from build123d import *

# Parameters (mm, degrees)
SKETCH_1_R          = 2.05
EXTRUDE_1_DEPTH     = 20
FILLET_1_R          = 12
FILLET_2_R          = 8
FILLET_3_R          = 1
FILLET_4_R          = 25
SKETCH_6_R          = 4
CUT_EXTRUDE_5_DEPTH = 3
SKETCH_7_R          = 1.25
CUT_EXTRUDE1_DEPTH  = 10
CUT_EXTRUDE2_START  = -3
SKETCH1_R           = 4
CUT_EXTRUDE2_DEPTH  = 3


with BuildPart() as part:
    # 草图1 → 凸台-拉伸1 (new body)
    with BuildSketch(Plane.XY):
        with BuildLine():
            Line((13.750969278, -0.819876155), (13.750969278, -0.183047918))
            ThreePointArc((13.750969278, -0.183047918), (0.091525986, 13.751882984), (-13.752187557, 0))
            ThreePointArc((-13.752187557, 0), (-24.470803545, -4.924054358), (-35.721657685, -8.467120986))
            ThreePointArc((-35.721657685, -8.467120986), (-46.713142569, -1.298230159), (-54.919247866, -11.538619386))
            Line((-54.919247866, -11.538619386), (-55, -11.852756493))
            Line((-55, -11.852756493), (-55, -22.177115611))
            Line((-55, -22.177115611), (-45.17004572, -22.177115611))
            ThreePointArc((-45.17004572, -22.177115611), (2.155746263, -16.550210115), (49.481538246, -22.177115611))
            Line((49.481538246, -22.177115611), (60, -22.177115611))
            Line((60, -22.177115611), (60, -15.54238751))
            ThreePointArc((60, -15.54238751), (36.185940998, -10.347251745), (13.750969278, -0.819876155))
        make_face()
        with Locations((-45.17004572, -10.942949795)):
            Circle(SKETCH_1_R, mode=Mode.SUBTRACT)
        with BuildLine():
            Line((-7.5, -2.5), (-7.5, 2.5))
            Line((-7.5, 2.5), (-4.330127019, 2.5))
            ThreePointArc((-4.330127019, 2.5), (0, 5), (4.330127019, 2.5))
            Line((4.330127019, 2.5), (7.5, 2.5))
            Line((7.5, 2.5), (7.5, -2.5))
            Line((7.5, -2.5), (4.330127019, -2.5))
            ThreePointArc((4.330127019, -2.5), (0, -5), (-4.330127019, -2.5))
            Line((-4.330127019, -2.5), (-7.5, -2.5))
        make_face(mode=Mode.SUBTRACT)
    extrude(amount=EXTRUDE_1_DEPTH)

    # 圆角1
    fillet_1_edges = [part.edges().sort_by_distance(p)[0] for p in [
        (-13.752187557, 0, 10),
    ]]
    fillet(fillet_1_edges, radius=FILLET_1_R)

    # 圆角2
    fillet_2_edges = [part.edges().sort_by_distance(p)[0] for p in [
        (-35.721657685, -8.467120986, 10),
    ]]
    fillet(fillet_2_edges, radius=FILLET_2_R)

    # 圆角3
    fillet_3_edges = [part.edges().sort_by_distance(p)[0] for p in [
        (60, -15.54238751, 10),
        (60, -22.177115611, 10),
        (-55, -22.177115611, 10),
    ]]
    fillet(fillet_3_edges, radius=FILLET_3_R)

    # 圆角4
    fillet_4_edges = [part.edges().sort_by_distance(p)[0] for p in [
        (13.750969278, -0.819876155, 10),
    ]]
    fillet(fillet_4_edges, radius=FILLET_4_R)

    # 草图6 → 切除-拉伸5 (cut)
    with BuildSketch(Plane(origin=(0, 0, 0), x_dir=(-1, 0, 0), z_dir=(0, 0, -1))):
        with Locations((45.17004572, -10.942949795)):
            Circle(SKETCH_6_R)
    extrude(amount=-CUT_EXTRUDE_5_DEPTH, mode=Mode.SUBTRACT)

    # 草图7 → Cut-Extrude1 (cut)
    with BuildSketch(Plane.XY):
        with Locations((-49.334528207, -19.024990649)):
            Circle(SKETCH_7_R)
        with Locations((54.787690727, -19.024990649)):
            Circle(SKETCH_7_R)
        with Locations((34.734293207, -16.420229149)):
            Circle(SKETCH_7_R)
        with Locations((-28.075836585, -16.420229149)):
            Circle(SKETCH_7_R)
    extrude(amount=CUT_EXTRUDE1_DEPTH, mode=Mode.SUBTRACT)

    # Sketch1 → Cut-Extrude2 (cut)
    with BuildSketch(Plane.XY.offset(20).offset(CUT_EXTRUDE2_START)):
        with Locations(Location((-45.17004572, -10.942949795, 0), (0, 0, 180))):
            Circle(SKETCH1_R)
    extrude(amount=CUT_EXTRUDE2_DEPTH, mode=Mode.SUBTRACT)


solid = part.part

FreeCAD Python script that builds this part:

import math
import FreeCAD as App
import Part
import Sketcher
from FreeCAD import Vector
Q = App.Units.Quantity


def edges_at(feature, points):
    """Names of the edges that pass closest to the given points."""
    edges = feature.Shape.Edges
    near = lambda p: min(range(len(edges)), key=lambda i: edges[i].distToShape(Part.Vertex(*p))[0])
    return sorted({f"Edge{near(p) + 1}" for p in points})

doc = App.newDocument("Part")
params = doc.addObject("Spreadsheet::Sheet", "Params")
for row, (alias, value) in enumerate([
    ("sketch1_radius", "5 mm"),
    ("sketch1_diameter", "4.1 mm"),
    ("sketch1_height", "5 mm"),
    ("pad1_length", "20 mm"),
    ("fillet_radius", "12 mm"),
    ("fillet2_radius", "8 mm"),
    ("fillet3_radius", "1 mm"),
    ("fillet4_radius", "25 mm"),
    ("sketch2_diameter", "8 mm"),
    ("pocket1_length", "3 mm"),
    ("sketch3_diameter", "2.5 mm"),
    ("pocket2_length", "10 mm"),
    ("sketch4_diameter", "8 mm"),
    ("pocket3_length", "3 mm"),
], start=1):
    params.set(f"A{row}", alias)
    params.set(f"B{row}", "=" + value)
    params.setAlias(f"B{row}", alias)

body = doc.addObject("PartDesign::Body", "Body")

# Sketch on XY plane
sketch1 = body.newObject("Sketcher::SketchObject", "Sketch")
sketch1.AttachmentSupport = (doc.getObject("XY_Plane"), [""])
sketch1.MapMode = "FlatFace"
sketch1.addGeometry(Part.LineSegment(Vector(13.750969, -0.819876, 0), Vector(13.750969, -0.183048, 0)), False)
sketch1.addGeometry(Part.ArcOfCircle(Part.Circle(Vector(0, 0, 0), Vector(0, 0, 1), 13.752188), math.radians(-0.762656), math.radians(180)), False)
sketch1.addGeometry(Part.ArcOfCircle(Part.Circle(Vector(-58.278703, 82.796628, 0), Vector(0, 0, 1), 94.010064), math.radians(-76.116831), math.radians(-61.729447)), False)
sketch1.addGeometry(Part.ArcOfCircle(Part.Circle(Vector(-45.170046, -10.94295, 0), Vector(0, 0, 1), 9.767383), math.radians(14.683492), math.radians(183.496386)), False)
sketch1.addGeometry(Part.LineSegment(Vector(-54.919248, -11.538619, 0), Vector(-55, -11.852756, 0)), False)
sketch1.addGeometry(Part.LineSegment(Vector(-55, -11.852756, 0), Vector(-55, -22.177116, 0)), False)
sketch1.addGeometry(Part.LineSegment(Vector(-55, -22.177116, 0), Vector(-45.170046, -22.177116, 0)), False)
sketch1.addGeometry(Part.ArcOfCircle(Part.Circle(Vector(2.155746, -218.383407, 0), Vector(0, 0, 1), 201.833197), math.radians(76.439044), math.radians(103.560956)), False)
sketch1.addGeometry(Part.LineSegment(Vector(49.481538, -22.177116, 0), Vector(60, -22.177116, 0)), False)
sketch1.addGeometry(Part.LineSegment(Vector(60, -22.177116, 0), Vector(60, -15.542388, 0)), False)
sketch1.addGeometry(Part.ArcOfCircle(Part.Circle(Vector(75.823429, 114.169236, 0), Vector(0, 0, 1), 130.673204), math.radians(-118.360689), math.radians(-96.955107)), False)
sketch1.addGeometry(Part.Circle(Vector(-45.170046, -10.94295, 0), Vector(0, 0, 1), 2.05), False)
sketch1.addGeometry(Part.LineSegment(Vector(-4.330127, -2.5, 0), Vector(-7.5, -2.5, 0)), False)
sketch1.addGeometry(Part.LineSegment(Vector(-7.5, -2.5, 0), Vector(-7.5, 2.5, 0)), False)
sketch1.addGeometry(Part.LineSegment(Vector(-7.5, 2.5, 0), Vector(-4.330127, 2.5, 0)), False)
sketch1.addGeometry(Part.ArcOfCircle(Part.Circle(Vector(0, 0, 0), Vector(0, 0, 1), 5), math.radians(30), math.radians(150)), False)
sketch1.addGeometry(Part.LineSegment(Vector(4.330127, 2.5, 0), Vector(7.5, 2.5, 0)), False)
sketch1.addGeometry(Part.LineSegment(Vector(7.5, 2.5, 0), Vector(7.5, -2.5, 0)), False)
sketch1.addGeometry(Part.LineSegment(Vector(7.5, -2.5, 0), Vector(4.330127, -2.5, 0)), False)
sketch1.addGeometry(Part.ArcOfCircle(Part.Circle(Vector(0, 0, 0), Vector(0, 0, 1), 5), math.radians(-150), math.radians(-30)), False)
sketch1.addConstraint(Sketcher.Constraint("Coincident", 0, 2, 1, 1))
sketch1.addConstraint(Sketcher.Constraint("Coincident", 1, 2, 2, 2))
sketch1.addConstraint(Sketcher.Constraint("Coincident", 2, 1, 3, 1))
sketch1.addConstraint(Sketcher.Constraint("Coincident", 3, 2, 4, 1))
sketch1.addConstraint(Sketcher.Constraint("Coincident", 4, 2, 5, 1))
sketch1.addConstraint(Sketcher.Constraint("Coincident", 5, 2, 6, 1))
sketch1.addConstraint(Sketcher.Constraint("Coincident", 6, 2, 7, 2))
sketch1.addConstraint(Sketcher.Constraint("Coincident", 7, 1, 8, 1))
sketch1.addConstraint(Sketcher.Constraint("Coincident", 8, 2, 9, 1))
sketch1.addConstraint(Sketcher.Constraint("Coincident", 9, 2, 10, 2))
sketch1.addConstraint(Sketcher.Constraint("Coincident", 10, 1, 0, 1))
sketch1.addConstraint(Sketcher.Constraint("Coincident", 12, 2, 13, 1))
sketch1.addConstraint(Sketcher.Constraint("Coincident", 13, 2, 14, 1))
sketch1.addConstraint(Sketcher.Constraint("Coincident", 14, 2, 15, 2))
sketch1.addConstraint(Sketcher.Constraint("Coincident", 15, 1, 16, 1))
sketch1.addConstraint(Sketcher.Constraint("Coincident", 16, 2, 17, 1))
sketch1.addConstraint(Sketcher.Constraint("Coincident", 17, 2, 18, 1))
sketch1.addConstraint(Sketcher.Constraint("Coincident", 18, 2, 19, 2))
sketch1.addConstraint(Sketcher.Constraint("Coincident", 19, 1, 12, 1))
sketch1.addConstraint(Sketcher.Constraint("Vertical", 0))
sketch1.addConstraint(Sketcher.Constraint("Vertical", 5))
sketch1.addConstraint(Sketcher.Constraint("Horizontal", 6))
sketch1.addConstraint(Sketcher.Constraint("Horizontal", 8))
sketch1.addConstraint(Sketcher.Constraint("Vertical", 9))
sketch1.addConstraint(Sketcher.Constraint("Horizontal", 12))
sketch1.addConstraint(Sketcher.Constraint("Vertical", 13))
sketch1.addConstraint(Sketcher.Constraint("Horizontal", 14))
sketch1.addConstraint(Sketcher.Constraint("Horizontal", 16))
sketch1.addConstraint(Sketcher.Constraint("Vertical", 17))
sketch1.addConstraint(Sketcher.Constraint("Horizontal", 18))
sketch1.addConstraint(Sketcher.Constraint("Coincident", 1, 3, -1, 1))
sketch1.addConstraint(Sketcher.Constraint("Coincident", 15, 3, -1, 1))
sketch1.addConstraint(Sketcher.Constraint("Coincident", 19, 3, -1, 1))
sketch1.addConstraint(Sketcher.Constraint("Coincident", 11, 3, 3, 3))
sketch1.addConstraint(Sketcher.Constraint("Equal", 15, 19))
sketch1.addConstraint(Sketcher.Constraint("Symmetric", 12, 2, 16, 2, -1, 1))
sketch1.addConstraint(Sketcher.Constraint("PointOnObject", 1, 2, -1))
sketch1.addConstraint(Sketcher.Constraint("Horizontal", 6, 2, 7, 1))
sketch1.addConstraint(Sketcher.Constraint("Horizontal", 14, 2, 15, 1))
sketch1.addConstraint(Sketcher.Constraint("Horizontal", 12, 2, 17, 2))
sketch1.addConstraint(Sketcher.Constraint("Vertical", 11, 3, 6, 2))
sketch1.addConstraint(Sketcher.Constraint("Radius", 15, Q("5 mm")))
sketch1.addConstraint(Sketcher.Constraint("Diameter", 11, Q("4.1 mm")))
sketch1.addConstraint(Sketcher.Constraint("DistanceY", 13, 1, 13, 2, Q("5 mm")))
sketch1.addConstraint(Sketcher.Constraint("DistanceX", 4, 2, -1, 1, Q("55 mm")))
sketch1.addConstraint(Sketcher.Constraint("DistanceX", -1, 1, 8, 2, Q("60 mm")))
sketch1.addConstraint(Sketcher.Constraint("DistanceX", 12, 2, -1, 1, Q("7.5 mm")))
sketch1.addConstraint(Sketcher.Constraint("Radius", 1, Q("13.752188 mm")))
sketch1.addConstraint(Sketcher.Constraint("Radius", 2, Q("94.010064 mm")))
sketch1.addConstraint(Sketcher.Constraint("Radius", 3, Q("9.767383 mm")))
sketch1.addConstraint(Sketcher.Constraint("Radius", 7, Q("201.833197 mm")))
sketch1.addConstraint(Sketcher.Constraint("Radius", 10, Q("130.673204 mm")))
sketch1.addConstraint(Sketcher.Constraint("DistanceX", 8, 1, 8, 2, Q("10.518462 mm")))
sketch1.addConstraint(Sketcher.Constraint("DistanceY", 0, 1, 0, 2, Q("0.636828 mm")))
sketch1.addConstraint(Sketcher.Constraint("DistanceY", 5, 2, 5, 1, Q("10.324359 mm")))
sketch1.addConstraint(Sketcher.Constraint("DistanceY", 9, 1, 9, 2, Q("6.634728 mm")))
sketch1.addConstraint(Sketcher.Constraint("DistanceY", 3, 3, 0, 2, Q("10.759902 mm")))
sketch1.addConstraint(Sketcher.Constraint("DistanceY", 3, 2, 2, 1, Q("3.071498 mm")))
sketch1.addConstraint(Sketcher.Constraint("Distance", 4, Q("0.32435 mm")))
sketch1.addConstraint(Sketcher.Constraint("DistanceX", 6, 1, 6, 2, Q("9.829954 mm")))
sketch1.addConstraint(Sketcher.Constraint("DistanceY", -1, 1, 2, 3, Q("82.796628 mm")))
sketch1.addConstraint(Sketcher.Constraint("DistanceY", 3, 3, -1, 1, Q("10.94295 mm")))
sketch1.setExpression("Constraints[41]", "Params.sketch1_radius")
sketch1.setExpression("Constraints[42]", "Params.sketch1_diameter")
sketch1.setExpression("Constraints[43]", "Params.sketch1_height")
pad1 = body.newObject("PartDesign::Pad", "Pad")
pad1.Profile = sketch1
pad1.setExpression("Length", "Params.pad1_length")
doc.recompute()

fillet = body.newObject("PartDesign::Fillet", "Fillet")
fillet.Base = (pad1, edges_at(pad1, [(-13.752, 0, 10)]))
fillet.setExpression("Radius", "Params.fillet_radius")
doc.recompute()

fillet2 = body.newObject("PartDesign::Fillet", "Fillet001")
fillet2.Base = (fillet, edges_at(fillet, [(-35.722, -8.467, 10)]))
fillet2.setExpression("Radius", "Params.fillet2_radius")
doc.recompute()

fillet3 = body.newObject("PartDesign::Fillet", "Fillet002")
fillet3.Base = (fillet2, edges_at(fillet2, [(60, -15.542, 10), (60, -22.177, 10), (-55, -22.177, 10)]))
fillet3.setExpression("Radius", "Params.fillet3_radius")
doc.recompute()

fillet4 = body.newObject("PartDesign::Fillet", "Fillet003")
fillet4.Base = (fillet3, edges_at(fillet3, [(13.751, -0.82, 10)]))
fillet4.setExpression("Radius", "Params.fillet4_radius")

# Sketch on XY plane
sketch2 = body.newObject("Sketcher::SketchObject", "Sketch001")
sketch2.AttachmentSupport = (doc.getObject("XY_Plane"), [""])
sketch2.MapMode = "FlatFace"
sketch2.addGeometry(Part.Circle(Vector(-45.170046, -10.94295, 0), Vector(0, 0, 1), 4), False)
sketch2.addConstraint(Sketcher.Constraint("Diameter", 0, Q("8 mm")))
sketch2.addConstraint(Sketcher.Constraint("DistanceY", 0, 3, -1, 1, Q("10.94295 mm")))
sketch2.addConstraint(Sketcher.Constraint("DistanceX", 0, 3, -1, 1, Q("45.170046 mm")))
sketch2.setExpression("Constraints[0]", "Params.sketch2_diameter")
pocket1 = body.newObject("PartDesign::Pocket", "Pocket")
pocket1.Profile = sketch2
pocket1.setExpression("Length", "Params.pocket1_length")
pocket1.Reversed = True

# Sketch on XY plane
sketch3 = body.newObject("Sketcher::SketchObject", "Sketch002")
sketch3.AttachmentSupport = (doc.getObject("XY_Plane"), [""])
sketch3.MapMode = "FlatFace"
sketch3.addGeometry(Part.Circle(Vector(-49.334528, -19.024991, 0), Vector(0, 0, 1), 1.25), False)
sketch3.addGeometry(Part.Circle(Vector(54.787691, -19.024991, 0), Vector(0, 0, 1), 1.25), False)
sketch3.addGeometry(Part.Circle(Vector(34.734293, -16.420229, 0), Vector(0, 0, 1), 1.25), False)
sketch3.addGeometry(Part.Circle(Vector(-28.075837, -16.420229, 0), Vector(0, 0, 1), 1.25), False)
sketch3.addConstraint(Sketcher.Constraint("Equal", 0, 1))
sketch3.addConstraint(Sketcher.Constraint("Equal", 1, 2))
sketch3.addConstraint(Sketcher.Constraint("Equal", 2, 3))
sketch3.addConstraint(Sketcher.Constraint("Horizontal", 0, 3, 1, 3))
sketch3.addConstraint(Sketcher.Constraint("Horizontal", 2, 3, 3, 3))
sketch3.addConstraint(Sketcher.Constraint("Diameter", 0, Q("2.5 mm")))
sketch3.addConstraint(Sketcher.Constraint("DistanceX", 0, 3, -1, 1, Q("49.334528 mm")))
sketch3.addConstraint(Sketcher.Constraint("DistanceY", 0, 3, -1, 1, Q("19.024991 mm")))
sketch3.addConstraint(Sketcher.Constraint("DistanceX", -1, 1, 1, 3, Q("54.787691 mm")))
sketch3.addConstraint(Sketcher.Constraint("DistanceY", 2, 3, -1, 1, Q("16.420229 mm")))
sketch3.addConstraint(Sketcher.Constraint("DistanceX", 0, 3, 2, 3, Q("84.068821 mm")))
sketch3.addConstraint(Sketcher.Constraint("DistanceX", 0, 3, 3, 3, Q("21.258692 mm")))
sketch3.setExpression("Constraints[5]", "Params.sketch3_diameter")
pocket2 = body.newObject("PartDesign::Pocket", "Pocket001")
pocket2.Profile = sketch3
pocket2.setExpression("Length", "Params.pocket2_length")
pocket2.Reversed = True

# Sketch on XY plane
sketch4 = body.newObject("Sketcher::SketchObject", "Sketch003")
sketch4.AttachmentSupport = (doc.getObject("XY_Plane"), [""])
sketch4.MapMode = "FlatFace"
sketch4.AttachmentOffset = App.Placement(Vector(0, 0, 17), App.Rotation())
sketch4.addGeometry(Part.Circle(Vector(-45.170046, -10.94295, 0), Vector(0, 0, 1), 4), False)
sketch4.addConstraint(Sketcher.Constraint("Diameter", 0, Q("8 mm")))
sketch4.addConstraint(Sketcher.Constraint("DistanceY", 0, 3, -1, 1, Q("10.94295 mm")))
sketch4.addConstraint(Sketcher.Constraint("DistanceX", 0, 3, -1, 1, Q("45.170046 mm")))
sketch4.setExpression("Constraints[0]", "Params.sketch4_diameter")
pocket3 = body.newObject("PartDesign::Pocket", "Pocket002")
pocket3.Profile = sketch4
pocket3.setExpression("Length", "Params.pocket3_length")
pocket3.Reversed = True

doc.recompute()
